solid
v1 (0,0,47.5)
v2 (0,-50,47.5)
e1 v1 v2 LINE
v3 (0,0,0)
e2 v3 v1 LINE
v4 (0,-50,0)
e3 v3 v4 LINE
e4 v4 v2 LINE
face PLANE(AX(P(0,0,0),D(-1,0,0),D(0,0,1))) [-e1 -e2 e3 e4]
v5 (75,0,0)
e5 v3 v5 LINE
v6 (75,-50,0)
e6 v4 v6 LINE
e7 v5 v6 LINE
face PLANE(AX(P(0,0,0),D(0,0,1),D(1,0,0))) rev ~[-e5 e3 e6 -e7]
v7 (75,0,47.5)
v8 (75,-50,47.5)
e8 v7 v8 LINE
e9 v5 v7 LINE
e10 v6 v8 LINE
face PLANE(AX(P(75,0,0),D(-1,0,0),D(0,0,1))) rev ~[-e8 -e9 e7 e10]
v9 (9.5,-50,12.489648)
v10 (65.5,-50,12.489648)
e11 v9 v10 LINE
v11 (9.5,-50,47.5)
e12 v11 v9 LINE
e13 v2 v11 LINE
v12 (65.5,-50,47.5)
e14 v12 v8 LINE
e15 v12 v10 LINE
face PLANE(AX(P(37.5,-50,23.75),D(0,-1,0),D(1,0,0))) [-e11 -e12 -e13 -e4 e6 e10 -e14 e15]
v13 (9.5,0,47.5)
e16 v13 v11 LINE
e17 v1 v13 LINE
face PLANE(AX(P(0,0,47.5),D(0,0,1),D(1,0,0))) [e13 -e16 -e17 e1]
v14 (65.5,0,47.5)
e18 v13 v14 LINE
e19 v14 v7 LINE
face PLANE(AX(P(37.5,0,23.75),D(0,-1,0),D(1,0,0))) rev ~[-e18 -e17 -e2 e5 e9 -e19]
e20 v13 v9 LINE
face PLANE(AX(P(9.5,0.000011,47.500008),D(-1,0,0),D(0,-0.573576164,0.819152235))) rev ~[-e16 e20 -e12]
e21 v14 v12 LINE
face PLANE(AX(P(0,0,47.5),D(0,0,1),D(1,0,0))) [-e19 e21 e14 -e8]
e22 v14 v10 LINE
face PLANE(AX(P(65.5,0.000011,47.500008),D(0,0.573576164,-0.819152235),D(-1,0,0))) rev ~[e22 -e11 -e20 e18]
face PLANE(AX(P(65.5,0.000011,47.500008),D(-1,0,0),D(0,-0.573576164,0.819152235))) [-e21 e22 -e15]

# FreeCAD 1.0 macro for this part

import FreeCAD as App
import Part
import Sketcher
Q = App.Units.Quantity

doc = App.newDocument("Part")
body = doc.addObject("PartDesign::Body", "Body")

# Sketch on XZ plane
sketch1 = body.newObject("Sketcher::SketchObject", "Sketch")
sketch1.AttachmentSupport = (doc.getObject("XZ_Plane"), [""])
sketch1.MapMode = "FlatFace"
sketch1.addGeometry(Part.LineSegment(App.Vector(0, 47.5, 0), App.Vector(0, 0, 0)), False)
sketch1.addGeometry(Part.LineSegment(App.Vector(0, 0, 0), App.Vector(75, 0, 0)), False)
sketch1.addGeometry(Part.LineSegment(App.Vector(75, 0, 0), App.Vector(75, 47.5, 0)), False)
sketch1.addGeometry(Part.LineSegment(App.Vector(75, 47.5, 0), App.Vector(0, 47.5, 0)), False)
sketch1.addConstraint(Sketcher.Constraint("Coincident", 0, 2, 1, 1))
sketch1.addConstraint(Sketcher.Constraint("Coincident", 1, 2, 2, 1))
sketch1.addConstraint(Sketcher.Constraint("Coincident", 2, 2, 3, 1))
sketch1.addConstraint(Sketcher.Constraint("Coincident", 3, 2, 0, 1))
sketch1.addConstraint(Sketcher.Constraint("Vertical", 0))
sketch1.addConstraint(Sketcher.Constraint("Horizontal", 1))
sketch1.addConstraint(Sketcher.Constraint("Vertical", 2))
sketch1.addConstraint(Sketcher.Constraint("Horizontal", 3))
sketch1.addConstraint(Sketcher.Constraint("Coincident", 0, 2, -1, 1))
sketch1.addConstraint(Sketcher.Constraint("DistanceX", 1, 1, 1, 2, Q("75 mm")))
sketch1.addConstraint(Sketcher.Constraint("DistanceY", 0, 2, 0, 1, Q("47.5 mm")))
pad1 = body.newObject("PartDesign::Pad", "Pad")
pad1.Profile = sketch1
pad1.Length = 50

# Sketch on an angled plane
sketch2 = body.newObject("Sketcher::SketchObject", "Sketch001")
sketch2.Placement = App.Placement(App.Vector(0, 22.3177, 15.627022), App.Rotation(App.Vector(-1, 0, 0), App.Vector(0, -0.573576164, 0.819152235), App.Vector(0, 0.819152235, 0.573576164), "ZXY"))
sketch2.addGeometry(Part.LineSegment(App.Vector(-65.5, 78.909722, 0), App.Vector(-65.5, 38.909722, 0)), False)
sketch2.addGeometry(Part.LineSegment(App.Vector(-65.5, 38.909722, 0), App.Vector(-9.5, 38.909722, 0)), False)
sketch2.addGeometry(Part.LineSegment(App.Vector(-9.5, 38.909722, 0), App.Vector(-9.5, 78.909722, 0)), False)
sketch2.addGeometry(Part.LineSegment(App.Vector(-9.5, 78.909722, 0), App.Vector(-65.5, 78.909722, 0)), False)
sketch2.addConstraint(Sketcher.Constraint("Coincident", 0, 2, 1, 1))
sketch2.addConstraint(Sketcher.Constraint("Coincident", 1, 2, 2, 1))
sketch2.addConstraint(Sketcher.Constraint("Coincident", 2, 2, 3, 1))
sketch2.addConstraint(Sketcher.Constraint("Coincident", 3, 2, 0, 1))
sketch2.addConstraint(Sketcher.Constraint("Vertical", 0))
sketch2.addConstraint(Sketcher.Constraint("Horizontal", 1))
sketch2.addConstraint(Sketcher.Constraint("Vertical", 2))
sketch2.addConstraint(Sketcher.Constraint("Horizontal", 3))
sketch2.addConstraint(Sketcher.Constraint("DistanceX", 1, 1, 1, 2, Q("56 mm")))
sketch2.addConstraint(Sketcher.Constraint("DistanceY", 0, 2, 0, 1, Q("40 mm")))
sketch2.addConstraint(Sketcher.Constraint("DistanceX", 0, 2, -1, 1, Q("65.5 mm")))
sketch2.addConstraint(Sketcher.Constraint("DistanceY", -1, 1, 0, 2, Q("38.909722 mm")))
pocket1 = body.newObject("PartDesign::Pocket", "Pocket")
pocket1.Profile = sketch2
pocket1.Type = "ThroughAll"

doc.recompute()
